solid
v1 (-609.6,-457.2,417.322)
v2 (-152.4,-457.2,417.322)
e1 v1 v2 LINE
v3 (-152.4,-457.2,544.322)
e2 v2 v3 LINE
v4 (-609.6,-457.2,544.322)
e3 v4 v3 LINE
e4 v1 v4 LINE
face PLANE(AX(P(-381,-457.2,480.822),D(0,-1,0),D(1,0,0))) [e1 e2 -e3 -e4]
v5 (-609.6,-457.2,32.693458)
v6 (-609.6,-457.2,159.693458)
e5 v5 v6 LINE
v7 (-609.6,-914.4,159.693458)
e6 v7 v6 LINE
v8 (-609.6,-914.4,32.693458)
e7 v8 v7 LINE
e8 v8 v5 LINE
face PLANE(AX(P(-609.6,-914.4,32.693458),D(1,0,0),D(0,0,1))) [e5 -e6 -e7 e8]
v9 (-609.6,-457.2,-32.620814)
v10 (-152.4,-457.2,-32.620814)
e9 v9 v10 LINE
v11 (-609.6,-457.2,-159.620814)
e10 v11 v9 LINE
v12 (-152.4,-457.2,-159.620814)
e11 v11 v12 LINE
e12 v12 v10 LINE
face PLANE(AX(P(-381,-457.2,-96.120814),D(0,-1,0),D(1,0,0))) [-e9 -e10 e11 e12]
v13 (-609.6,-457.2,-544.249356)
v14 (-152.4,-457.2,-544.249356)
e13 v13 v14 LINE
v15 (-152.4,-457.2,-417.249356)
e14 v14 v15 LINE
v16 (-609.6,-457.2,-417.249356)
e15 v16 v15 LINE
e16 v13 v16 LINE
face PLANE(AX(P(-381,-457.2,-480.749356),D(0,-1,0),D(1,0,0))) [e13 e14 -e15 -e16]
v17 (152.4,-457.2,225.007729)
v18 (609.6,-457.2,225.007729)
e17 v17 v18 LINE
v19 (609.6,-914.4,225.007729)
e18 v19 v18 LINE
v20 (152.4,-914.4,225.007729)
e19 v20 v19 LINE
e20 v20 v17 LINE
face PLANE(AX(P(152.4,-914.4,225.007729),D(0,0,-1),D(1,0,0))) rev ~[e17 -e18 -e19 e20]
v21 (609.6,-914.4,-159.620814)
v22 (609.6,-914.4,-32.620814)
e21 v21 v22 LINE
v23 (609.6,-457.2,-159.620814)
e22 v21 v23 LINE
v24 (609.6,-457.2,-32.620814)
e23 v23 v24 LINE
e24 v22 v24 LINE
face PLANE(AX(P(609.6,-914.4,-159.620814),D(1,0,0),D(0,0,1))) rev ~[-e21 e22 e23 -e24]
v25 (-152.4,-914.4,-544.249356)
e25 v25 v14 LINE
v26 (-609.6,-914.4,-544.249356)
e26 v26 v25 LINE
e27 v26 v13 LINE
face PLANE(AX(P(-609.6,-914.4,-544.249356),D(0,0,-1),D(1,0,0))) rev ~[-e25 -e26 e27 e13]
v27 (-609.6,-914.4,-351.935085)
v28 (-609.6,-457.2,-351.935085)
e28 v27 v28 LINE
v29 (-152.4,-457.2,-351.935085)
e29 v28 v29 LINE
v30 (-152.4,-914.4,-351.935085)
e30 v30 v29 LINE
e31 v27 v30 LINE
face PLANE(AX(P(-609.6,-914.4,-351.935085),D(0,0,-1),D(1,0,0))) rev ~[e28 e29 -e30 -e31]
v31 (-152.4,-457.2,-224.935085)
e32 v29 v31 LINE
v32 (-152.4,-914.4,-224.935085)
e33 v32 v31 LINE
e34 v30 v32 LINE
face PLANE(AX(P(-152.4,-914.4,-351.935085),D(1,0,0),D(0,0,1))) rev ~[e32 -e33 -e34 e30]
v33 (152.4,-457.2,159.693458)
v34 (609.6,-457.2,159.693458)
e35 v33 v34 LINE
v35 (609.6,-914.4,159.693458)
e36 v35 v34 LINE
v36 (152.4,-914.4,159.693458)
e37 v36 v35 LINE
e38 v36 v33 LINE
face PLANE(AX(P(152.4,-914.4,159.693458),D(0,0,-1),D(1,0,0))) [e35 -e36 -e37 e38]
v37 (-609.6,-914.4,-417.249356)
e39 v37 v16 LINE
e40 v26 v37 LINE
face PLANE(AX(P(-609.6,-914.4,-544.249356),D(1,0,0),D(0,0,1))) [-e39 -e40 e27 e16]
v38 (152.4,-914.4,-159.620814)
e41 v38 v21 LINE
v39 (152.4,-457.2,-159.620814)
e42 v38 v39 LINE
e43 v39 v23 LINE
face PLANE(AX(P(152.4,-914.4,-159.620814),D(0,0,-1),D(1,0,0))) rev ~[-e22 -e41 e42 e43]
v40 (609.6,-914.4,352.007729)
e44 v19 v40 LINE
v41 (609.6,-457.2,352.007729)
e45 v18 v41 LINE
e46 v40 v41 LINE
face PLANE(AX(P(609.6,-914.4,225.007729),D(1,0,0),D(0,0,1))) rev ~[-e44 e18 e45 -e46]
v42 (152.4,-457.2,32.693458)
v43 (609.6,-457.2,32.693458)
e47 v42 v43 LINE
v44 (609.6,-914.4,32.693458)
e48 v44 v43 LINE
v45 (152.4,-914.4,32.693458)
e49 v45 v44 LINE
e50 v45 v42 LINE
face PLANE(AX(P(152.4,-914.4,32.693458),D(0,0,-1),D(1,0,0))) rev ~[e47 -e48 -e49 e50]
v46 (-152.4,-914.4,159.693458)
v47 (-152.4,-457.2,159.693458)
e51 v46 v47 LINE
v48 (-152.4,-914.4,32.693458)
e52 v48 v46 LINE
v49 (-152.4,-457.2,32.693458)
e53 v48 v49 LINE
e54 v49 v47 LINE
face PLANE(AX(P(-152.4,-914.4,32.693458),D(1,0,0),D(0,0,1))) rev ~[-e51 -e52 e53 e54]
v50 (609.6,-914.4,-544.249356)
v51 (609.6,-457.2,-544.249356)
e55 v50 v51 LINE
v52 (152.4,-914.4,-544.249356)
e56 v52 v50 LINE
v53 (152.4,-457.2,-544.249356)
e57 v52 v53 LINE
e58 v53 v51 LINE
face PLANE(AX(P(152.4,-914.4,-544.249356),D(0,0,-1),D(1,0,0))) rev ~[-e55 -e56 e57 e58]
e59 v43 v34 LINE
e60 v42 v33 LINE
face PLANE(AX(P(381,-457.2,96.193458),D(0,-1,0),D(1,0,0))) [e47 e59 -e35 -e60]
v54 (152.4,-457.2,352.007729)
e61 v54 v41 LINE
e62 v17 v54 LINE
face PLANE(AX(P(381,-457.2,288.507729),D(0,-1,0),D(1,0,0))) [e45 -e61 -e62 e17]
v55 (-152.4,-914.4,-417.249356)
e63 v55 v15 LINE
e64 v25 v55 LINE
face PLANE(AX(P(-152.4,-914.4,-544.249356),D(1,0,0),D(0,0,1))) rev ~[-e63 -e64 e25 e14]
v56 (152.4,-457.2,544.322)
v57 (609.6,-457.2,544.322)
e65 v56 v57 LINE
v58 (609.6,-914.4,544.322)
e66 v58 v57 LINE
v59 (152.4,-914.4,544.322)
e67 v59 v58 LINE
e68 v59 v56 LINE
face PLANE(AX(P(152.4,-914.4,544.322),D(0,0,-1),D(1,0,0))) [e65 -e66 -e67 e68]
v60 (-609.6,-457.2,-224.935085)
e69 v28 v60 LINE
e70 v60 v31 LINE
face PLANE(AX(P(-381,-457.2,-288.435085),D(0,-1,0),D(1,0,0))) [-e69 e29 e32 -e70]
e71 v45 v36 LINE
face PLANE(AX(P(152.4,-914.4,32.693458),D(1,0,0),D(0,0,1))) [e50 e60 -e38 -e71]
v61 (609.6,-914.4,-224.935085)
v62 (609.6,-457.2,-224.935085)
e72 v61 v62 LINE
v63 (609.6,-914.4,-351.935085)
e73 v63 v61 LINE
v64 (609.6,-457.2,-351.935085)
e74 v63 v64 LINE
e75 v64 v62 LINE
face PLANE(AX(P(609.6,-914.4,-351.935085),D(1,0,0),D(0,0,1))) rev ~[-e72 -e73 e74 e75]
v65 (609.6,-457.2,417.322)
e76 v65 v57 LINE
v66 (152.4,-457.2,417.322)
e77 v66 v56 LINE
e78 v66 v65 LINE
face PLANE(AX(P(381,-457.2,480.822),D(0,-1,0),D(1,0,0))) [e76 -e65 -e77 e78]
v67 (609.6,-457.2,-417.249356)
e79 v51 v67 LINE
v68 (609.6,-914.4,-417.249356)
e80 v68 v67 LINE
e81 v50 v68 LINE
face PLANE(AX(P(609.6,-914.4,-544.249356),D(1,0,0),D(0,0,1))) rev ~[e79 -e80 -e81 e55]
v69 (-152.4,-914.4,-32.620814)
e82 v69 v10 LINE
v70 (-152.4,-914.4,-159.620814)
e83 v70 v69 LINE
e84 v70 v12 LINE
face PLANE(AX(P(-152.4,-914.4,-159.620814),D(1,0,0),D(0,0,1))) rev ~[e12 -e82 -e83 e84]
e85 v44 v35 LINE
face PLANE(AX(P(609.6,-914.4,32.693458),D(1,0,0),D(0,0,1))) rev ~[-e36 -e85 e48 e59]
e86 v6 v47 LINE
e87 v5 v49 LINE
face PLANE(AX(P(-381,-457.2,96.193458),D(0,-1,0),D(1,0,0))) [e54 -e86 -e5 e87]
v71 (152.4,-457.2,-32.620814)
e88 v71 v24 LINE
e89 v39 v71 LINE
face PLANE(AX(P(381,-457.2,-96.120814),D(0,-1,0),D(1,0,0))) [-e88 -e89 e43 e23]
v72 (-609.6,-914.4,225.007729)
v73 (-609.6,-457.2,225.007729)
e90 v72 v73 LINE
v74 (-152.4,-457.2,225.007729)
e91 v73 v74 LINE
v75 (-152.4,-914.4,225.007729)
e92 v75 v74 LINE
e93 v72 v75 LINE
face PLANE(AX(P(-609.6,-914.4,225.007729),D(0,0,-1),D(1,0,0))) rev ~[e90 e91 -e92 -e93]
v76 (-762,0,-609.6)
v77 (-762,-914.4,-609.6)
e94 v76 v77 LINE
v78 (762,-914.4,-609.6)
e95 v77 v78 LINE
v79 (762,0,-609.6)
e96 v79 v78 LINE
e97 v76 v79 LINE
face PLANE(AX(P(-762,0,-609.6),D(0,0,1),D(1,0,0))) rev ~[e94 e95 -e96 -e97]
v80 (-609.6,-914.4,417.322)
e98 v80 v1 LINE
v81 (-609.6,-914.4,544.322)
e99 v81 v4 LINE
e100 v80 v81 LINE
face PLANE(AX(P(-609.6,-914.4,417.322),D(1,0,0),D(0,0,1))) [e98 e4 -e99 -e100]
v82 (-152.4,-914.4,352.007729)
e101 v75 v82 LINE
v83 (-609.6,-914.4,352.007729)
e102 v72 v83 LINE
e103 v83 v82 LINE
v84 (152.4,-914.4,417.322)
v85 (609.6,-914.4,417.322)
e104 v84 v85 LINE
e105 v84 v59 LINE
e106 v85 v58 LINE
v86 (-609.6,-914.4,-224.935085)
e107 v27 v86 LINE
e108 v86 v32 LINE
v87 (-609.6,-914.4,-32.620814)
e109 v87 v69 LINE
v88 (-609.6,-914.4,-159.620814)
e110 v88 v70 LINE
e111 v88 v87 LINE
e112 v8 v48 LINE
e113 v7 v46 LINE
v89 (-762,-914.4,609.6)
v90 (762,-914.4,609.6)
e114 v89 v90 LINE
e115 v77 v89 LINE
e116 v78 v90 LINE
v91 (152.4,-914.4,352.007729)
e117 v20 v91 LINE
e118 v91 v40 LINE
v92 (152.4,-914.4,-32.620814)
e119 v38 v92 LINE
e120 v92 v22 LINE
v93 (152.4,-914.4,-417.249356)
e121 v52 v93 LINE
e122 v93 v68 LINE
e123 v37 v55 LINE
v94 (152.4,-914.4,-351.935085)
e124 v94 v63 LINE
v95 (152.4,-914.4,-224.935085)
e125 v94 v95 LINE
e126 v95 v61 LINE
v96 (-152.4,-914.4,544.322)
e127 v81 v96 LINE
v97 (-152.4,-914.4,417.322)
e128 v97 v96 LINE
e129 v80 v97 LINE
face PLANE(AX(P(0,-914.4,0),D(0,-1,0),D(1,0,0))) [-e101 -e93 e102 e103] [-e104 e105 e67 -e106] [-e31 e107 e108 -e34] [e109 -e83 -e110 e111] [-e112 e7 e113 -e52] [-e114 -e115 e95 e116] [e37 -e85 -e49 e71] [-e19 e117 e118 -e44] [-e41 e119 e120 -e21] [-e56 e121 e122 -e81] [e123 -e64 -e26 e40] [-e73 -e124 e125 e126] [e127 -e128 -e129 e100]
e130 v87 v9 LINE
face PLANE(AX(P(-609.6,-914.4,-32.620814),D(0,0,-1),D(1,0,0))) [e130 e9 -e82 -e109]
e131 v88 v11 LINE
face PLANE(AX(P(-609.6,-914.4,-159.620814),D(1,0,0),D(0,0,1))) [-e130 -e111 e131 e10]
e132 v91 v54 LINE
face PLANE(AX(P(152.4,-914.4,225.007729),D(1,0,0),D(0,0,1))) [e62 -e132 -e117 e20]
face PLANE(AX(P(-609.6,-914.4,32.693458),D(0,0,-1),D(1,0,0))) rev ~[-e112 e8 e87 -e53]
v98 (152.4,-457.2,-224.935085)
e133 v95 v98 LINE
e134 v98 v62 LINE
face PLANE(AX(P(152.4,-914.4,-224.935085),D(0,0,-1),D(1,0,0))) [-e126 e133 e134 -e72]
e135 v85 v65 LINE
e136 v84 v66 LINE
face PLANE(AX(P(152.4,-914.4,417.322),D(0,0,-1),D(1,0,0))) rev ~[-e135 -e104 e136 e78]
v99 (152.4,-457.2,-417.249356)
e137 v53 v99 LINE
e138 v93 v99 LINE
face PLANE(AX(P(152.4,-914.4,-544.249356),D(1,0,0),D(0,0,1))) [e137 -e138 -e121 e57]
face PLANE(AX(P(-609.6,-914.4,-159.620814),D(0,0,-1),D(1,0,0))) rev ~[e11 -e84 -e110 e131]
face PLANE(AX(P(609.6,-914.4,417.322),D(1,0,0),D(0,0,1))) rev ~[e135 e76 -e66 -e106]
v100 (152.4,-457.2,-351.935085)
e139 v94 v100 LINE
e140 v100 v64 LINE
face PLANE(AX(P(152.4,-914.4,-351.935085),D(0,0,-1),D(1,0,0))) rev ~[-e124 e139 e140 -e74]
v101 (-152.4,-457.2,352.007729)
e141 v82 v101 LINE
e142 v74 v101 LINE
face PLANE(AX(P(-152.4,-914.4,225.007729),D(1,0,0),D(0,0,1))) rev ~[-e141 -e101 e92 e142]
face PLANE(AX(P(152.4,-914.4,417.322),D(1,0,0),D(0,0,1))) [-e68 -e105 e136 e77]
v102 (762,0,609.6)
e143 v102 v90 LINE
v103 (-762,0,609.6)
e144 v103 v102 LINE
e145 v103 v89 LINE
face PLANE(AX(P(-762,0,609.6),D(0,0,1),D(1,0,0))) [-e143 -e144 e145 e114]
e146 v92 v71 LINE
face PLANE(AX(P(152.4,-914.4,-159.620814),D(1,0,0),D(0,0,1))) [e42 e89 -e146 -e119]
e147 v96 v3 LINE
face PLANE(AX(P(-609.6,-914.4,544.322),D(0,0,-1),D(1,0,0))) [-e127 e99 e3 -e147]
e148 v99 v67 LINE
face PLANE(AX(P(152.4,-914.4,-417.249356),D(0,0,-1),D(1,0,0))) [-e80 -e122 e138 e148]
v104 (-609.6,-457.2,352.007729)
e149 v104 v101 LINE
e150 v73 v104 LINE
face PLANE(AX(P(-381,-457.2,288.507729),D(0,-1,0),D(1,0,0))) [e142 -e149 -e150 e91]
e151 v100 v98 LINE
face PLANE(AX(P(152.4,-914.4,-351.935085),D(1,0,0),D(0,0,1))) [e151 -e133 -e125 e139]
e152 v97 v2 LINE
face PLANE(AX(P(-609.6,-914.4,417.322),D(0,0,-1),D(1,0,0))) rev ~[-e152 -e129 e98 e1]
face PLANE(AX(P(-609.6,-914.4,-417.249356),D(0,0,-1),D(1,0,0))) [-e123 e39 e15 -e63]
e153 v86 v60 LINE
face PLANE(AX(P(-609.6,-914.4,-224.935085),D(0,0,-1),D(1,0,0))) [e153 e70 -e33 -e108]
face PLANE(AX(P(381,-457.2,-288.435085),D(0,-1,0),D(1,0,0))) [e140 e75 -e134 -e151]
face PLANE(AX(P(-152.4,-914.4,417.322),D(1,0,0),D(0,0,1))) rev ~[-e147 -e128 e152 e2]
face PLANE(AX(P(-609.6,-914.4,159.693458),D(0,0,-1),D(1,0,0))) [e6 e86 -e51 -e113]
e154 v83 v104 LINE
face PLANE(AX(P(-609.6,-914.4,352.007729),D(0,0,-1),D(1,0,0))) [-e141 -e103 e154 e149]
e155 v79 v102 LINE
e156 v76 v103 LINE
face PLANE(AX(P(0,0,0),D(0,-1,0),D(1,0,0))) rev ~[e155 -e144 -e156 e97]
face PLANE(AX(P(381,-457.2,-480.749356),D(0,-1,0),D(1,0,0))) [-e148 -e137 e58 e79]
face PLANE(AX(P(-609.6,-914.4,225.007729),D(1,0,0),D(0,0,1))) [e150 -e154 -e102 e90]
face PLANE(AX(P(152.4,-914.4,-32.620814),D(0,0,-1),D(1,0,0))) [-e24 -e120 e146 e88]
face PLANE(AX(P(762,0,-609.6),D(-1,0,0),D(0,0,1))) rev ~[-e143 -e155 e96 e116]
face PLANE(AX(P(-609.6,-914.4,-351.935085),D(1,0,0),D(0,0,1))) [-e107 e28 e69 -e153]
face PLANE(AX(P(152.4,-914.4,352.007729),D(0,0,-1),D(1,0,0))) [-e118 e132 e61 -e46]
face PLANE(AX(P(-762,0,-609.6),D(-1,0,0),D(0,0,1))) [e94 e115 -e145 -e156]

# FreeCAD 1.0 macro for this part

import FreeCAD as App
import Part
import Sketcher
Q = App.Units.Quantity


def add_polygon(sketch, points):
    """Adds a closed chain of lines whose ends are joined by coincident constraints."""
    first, n = sketch.GeometryCount, len(points)
    for a, b in zip(points, points[1:] + points[:1]):
        sketch.addGeometry(Part.LineSegment(App.Vector(*a, 0), App.Vector(*b, 0)), False)
    for i in range(n):
        sketch.addConstraint(Sketcher.Constraint("Coincident", first + i, 2, first + (i + 1) % n, 1))

doc = App.newDocument("Part")
body = doc.addObject("PartDesign::Body", "Body")

# Sketch on XZ plane
sketch1 = body.newObject("Sketcher::SketchObject", "Sketch")
sketch1.AttachmentSupport = (doc.getObject("XZ_Plane"), [""])
sketch1.MapMode = "FlatFace"
add_polygon(sketch1, [(-762, 610), (-762, -610), (762, -610), (762, 610)])  # lines 0-3
sketch1.addConstraint([
    Sketcher.Constraint("Vertical", 0),
    Sketcher.Constraint("Horizontal", 1),
    Sketcher.Constraint("Vertical", 2),
    Sketcher.Constraint("Horizontal", 3),
    Sketcher.Constraint("Symmetric", 0, 2, 2, 2, -1, 1),
    Sketcher.Constraint("DistanceX", 1, 1, 1, 2, Q("60 in")),
    Sketcher.Constraint("DistanceY", 0, 2, 0, 1, Q("48 in")),
])
pad1 = body.newObject("PartDesign::Pad", "Pad")
pad1.Profile = sketch1
pad1.Length = Q("36 in")

# Sketch on XZ plane
sketch2 = body.newObject("Sketcher::SketchObject", "Sketch001")
sketch2.AttachmentSupport = (doc.getObject("XZ_Plane"), [""])
sketch2.MapMode = "FlatFace"
sketch2.AttachmentOffset = App.Placement(App.Vector(0, 0, 36 * 25.4), App.Rotation())
add_polygon(sketch2, [(-610, 544), (-610, 417), (-152, 417), (-152, 544)])  # lines 0-3
add_polygon(sketch2, [(152, 544), (152, 417), (610, 417), (610, 544)])  # lines 4-7
add_polygon(sketch2, [(-610, 352), (-610, 225), (-152, 225), (-152, 352)])  # lines 8-11
add_polygon(sketch2, [(152, 352), (152, 225), (610, 225), (610, 352)])  # lines 12-15
add_polygon(sketch2, [(-610, 160), (-610, 33), (-152, 33), (-152, 160)])  # lines 16-19
add_polygon(sketch2, [(152, 160), (152, 33), (610, 33), (610, 160)])  # lines 20-23
add_polygon(sketch2, [(-610, -33), (-610, -160), (-152, -160), (-152, -33)])  # lines 24-27
add_polygon(sketch2, [(152, -33), (152, -160), (610, -160), (610, -33)])  # lines 28-31
add_polygon(sketch2, [(-610, -225), (-610, -352), (-152, -352), (-152, -225)])  # lines 32-35
add_polygon(sketch2, [(152, -225), (152, -352), (610, -352), (610, -225)])  # lines 36-39
add_polygon(sketch2, [(-610, -417), (-610, -544), (-152, -544), (-152, -417)])  # lines 40-43
add_polygon(sketch2, [(152, -417), (152, -544), (610, -544), (610, -417)])  # lines 44-47
sketch2.addConstraint([
    Sketcher.Constraint("Vertical", 0),
    Sketcher.Constraint("Horizontal", 1),
    Sketcher.Constraint("Vertical", 2),
    Sketcher.Constraint("Horizontal", 3),
    Sketcher.Constraint("Vertical", 4),
    Sketcher.Constraint("Horizontal", 5),
    Sketcher.Constraint("Vertical", 6),
    Sketcher.Constraint("Horizontal", 7),
    Sketcher.Constraint("Vertical", 8),
    Sketcher.Constraint("Horizontal", 9),
    Sketcher.Constraint("Vertical", 10),
    Sketcher.Constraint("Horizontal", 11),
    Sketcher.Constraint("Vertical", 12),
    Sketcher.Constraint("Horizontal", 13),
    Sketcher.Constraint("Vertical", 14),
    Sketcher.Constraint("Horizontal", 15),
    Sketcher.Constraint("Vertical", 16),
    Sketcher.Constraint("Horizontal", 17),
    Sketcher.Constraint("Vertical", 18),
    Sketcher.Constraint("Horizontal", 19),
    Sketcher.Constraint("Vertical", 20),
    Sketcher.Constraint("Horizontal", 21),
    Sketcher.Constraint("Vertical", 22),
    Sketcher.Constraint("Horizontal", 23),
    Sketcher.Constraint("Vertical", 24),
    Sketcher.Constraint("Horizontal", 25),
    Sketcher.Constraint("Vertical", 26),
    Sketcher.Constraint("Horizontal", 27),
    Sketcher.Constraint("Vertical", 28),
    Sketcher.Constraint("Horizontal", 29),
    Sketcher.Constraint("Vertical", 30),
    Sketcher.Constraint("Horizontal", 31),
    Sketcher.Constraint("Vertical", 32),
    Sketcher.Constraint("Horizontal", 33),
    Sketcher.Constraint("Vertical", 34),
    Sketcher.Constraint("Horizontal", 35),
    Sketcher.Constraint("Vertical", 36),
    Sketcher.Constraint("Horizontal", 37),
    Sketcher.Constraint("Vertical", 38),
    Sketcher.Constraint("Horizontal", 39),
    Sketcher.Constraint("Vertical", 40),
    Sketcher.Constraint("Horizontal", 41),
    Sketcher.Constraint("Vertical", 42),
    Sketcher.Constraint("Horizontal", 43),
    Sketcher.Constraint("Vertical", 44),
    Sketcher.Constraint("Horizontal", 45),
    Sketcher.Constraint("Vertical", 46),
    Sketcher.Constraint("Horizontal", 47),
    Sketcher.Constraint("Symmetric", 1, 2, 4, 2, -2),
    Sketcher.Constraint("Symmetric", 3, 2, 6, 2, -2),
    Sketcher.Constraint("Symmetric", 9, 2, 12, 2, -2),
    Sketcher.Constraint("Symmetric", 11, 2, 14, 2, -2),
    Sketcher.Constraint("Symmetric", 17, 2, 20, 2, -2),
    Sketcher.Constraint("Symmetric", 19, 2, 22, 2, -2),
    Sketcher.Constraint("Symmetric", 25, 2, 28, 2, -2),
    Sketcher.Constraint("Symmetric", 27, 2, 30, 2, -2),
    Sketcher.Constraint("Symmetric", 33, 2, 36, 2, -2),
    Sketcher.Constraint("Symmetric", 35, 2, 38, 2, -2),
    Sketcher.Constraint("Symmetric", 41, 2, 44, 2, -2),
    Sketcher.Constraint("Symmetric", 43, 2, 46, 2, -2),
    Sketcher.Constraint("Vertical", 3, 2, 8, 2),
    Sketcher.Constraint("Vertical", 2, 2, 9, 2),
    Sketcher.Constraint("Vertical", 11, 2, 16, 2),
    Sketcher.Constraint("Vertical", 10, 2, 17, 2),
    Sketcher.Constraint("Vertical", 19, 2, 24, 2),
    Sketcher.Constraint("Vertical", 18, 2, 25, 2),
    Sketcher.Constraint("Vertical", 27, 2, 32, 2),
    Sketcher.Constraint("Vertical", 26, 2, 33, 2),
    Sketcher.Constraint("Vertical", 35, 2, 40, 2),
    Sketcher.Constraint("Vertical", 34, 2, 41, 2),
    Sketcher.Constraint("Equal", 6, 8),
    Sketcher.Constraint("Equal", 14, 16),
    Sketcher.Constraint("Equal", 22, 24),
    Sketcher.Constraint("Equal", 30, 32),
    Sketcher.Constraint("Equal", 38, 40),
    Sketcher.Constraint("DistanceX", 1, 1, 1, 2, Q("18 in")),
    Sketcher.Constraint("DistanceY", 0, 2, 0, 1, Q("5 in")),
    Sketcher.Constraint("DistanceX", 0, 2, -1, 1, Q("24 in")),
    Sketcher.Constraint("DistanceY", -1, 1, 0, 2, Q("16.43 in")),
    Sketcher.Constraint("DistanceY", -1, 1, 8, 2, Q("225.007729 mm")),
    Sketcher.Constraint("DistanceY", -1, 1, 18, 2, Q("159.693458 mm")),
    Sketcher.Constraint("DistanceY", 24, 2, 16, 2, Q("192.314272 mm")),
    Sketcher.Constraint("DistanceY", 32, 2, 24, 2, Q("192.314271 mm")),
    Sketcher.Constraint("DistanceY", 40, 2, 32, 2, Q("192.314271 mm")),
])
pocket1 = body.newObject("PartDesign::Pocket", "Pocket")
pocket1.Profile = sketch2
pocket1.Length = Q("18 in")

doc.recompute()
